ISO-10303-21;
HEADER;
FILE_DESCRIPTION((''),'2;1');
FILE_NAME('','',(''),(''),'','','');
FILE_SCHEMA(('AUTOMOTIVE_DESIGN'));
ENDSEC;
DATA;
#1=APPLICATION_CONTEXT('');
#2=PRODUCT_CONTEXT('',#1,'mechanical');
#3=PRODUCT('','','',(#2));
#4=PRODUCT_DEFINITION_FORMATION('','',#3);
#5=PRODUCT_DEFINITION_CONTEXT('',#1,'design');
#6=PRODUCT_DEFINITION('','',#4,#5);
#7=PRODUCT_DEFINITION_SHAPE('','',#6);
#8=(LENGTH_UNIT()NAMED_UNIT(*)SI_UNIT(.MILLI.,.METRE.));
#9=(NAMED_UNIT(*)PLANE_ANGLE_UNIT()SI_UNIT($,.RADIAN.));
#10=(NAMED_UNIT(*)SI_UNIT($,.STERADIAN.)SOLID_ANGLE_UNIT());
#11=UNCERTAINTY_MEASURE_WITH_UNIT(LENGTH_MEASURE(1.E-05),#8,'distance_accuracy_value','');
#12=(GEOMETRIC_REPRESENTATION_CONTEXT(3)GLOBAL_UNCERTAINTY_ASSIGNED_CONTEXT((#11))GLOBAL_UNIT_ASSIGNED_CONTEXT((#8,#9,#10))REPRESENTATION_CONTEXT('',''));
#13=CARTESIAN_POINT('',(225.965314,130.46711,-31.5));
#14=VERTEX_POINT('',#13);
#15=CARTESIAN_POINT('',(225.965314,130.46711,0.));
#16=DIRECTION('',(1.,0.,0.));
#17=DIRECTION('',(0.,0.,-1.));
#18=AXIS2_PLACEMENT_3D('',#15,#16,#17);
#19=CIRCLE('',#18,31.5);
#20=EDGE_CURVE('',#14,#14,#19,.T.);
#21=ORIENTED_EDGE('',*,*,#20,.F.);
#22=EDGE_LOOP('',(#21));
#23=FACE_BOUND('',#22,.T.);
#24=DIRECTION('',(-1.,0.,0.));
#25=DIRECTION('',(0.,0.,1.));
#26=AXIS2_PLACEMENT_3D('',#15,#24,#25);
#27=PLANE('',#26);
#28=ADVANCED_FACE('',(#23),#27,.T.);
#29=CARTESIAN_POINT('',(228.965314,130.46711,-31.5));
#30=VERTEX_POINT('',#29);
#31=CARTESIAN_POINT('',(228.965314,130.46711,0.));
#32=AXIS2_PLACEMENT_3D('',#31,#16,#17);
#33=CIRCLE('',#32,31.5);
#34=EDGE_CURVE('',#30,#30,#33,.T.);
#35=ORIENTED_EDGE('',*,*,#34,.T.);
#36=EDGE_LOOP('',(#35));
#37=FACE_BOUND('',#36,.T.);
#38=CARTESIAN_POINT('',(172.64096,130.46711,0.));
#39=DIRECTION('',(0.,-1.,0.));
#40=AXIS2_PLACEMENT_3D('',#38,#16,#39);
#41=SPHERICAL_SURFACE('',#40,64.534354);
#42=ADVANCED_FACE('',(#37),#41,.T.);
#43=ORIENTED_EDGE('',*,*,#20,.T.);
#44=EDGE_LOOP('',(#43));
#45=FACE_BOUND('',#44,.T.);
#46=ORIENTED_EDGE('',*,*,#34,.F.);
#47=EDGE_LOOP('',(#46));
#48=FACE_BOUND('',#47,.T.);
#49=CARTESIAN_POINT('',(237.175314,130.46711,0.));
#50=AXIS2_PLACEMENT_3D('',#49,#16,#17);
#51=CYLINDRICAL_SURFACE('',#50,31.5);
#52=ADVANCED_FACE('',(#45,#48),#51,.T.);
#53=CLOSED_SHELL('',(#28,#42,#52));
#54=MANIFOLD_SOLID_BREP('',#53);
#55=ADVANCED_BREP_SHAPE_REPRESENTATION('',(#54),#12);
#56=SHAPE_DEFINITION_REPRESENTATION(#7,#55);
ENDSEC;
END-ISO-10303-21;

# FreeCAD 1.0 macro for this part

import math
import FreeCAD as App
import Part
import Sketcher
Q = App.Units.Quantity

doc = App.newDocument("Part")
body = doc.addObject("PartDesign::Body", "Body")

sketch1 = body.newObject("Sketcher::SketchObject", "Sketch")
sketch1.AttachmentSupport = (doc.getObject("XY_Plane"), [""])
sketch1.MapMode = "FlatFace"
sketch1.addGeometry([
    Part.LineSegment(App.Vector(226, 130.5, 0), App.Vector(237.2, 130.5, 0)),
    Part.ArcOfCircle(Part.Circle(App.Vector(172.6, 130.5, 0), App.Vector(0, 0, 1), 64.5), math.radians(0), math.radians(29)),
    Part.LineSegment(App.Vector(229, 162, 0), App.Vector(226, 162, 0)),
    Part.LineSegment(App.Vector(226, 162, 0), App.Vector(226, 130.5, 0)),
], False)
sketch1.addGeometry(Part.LineSegment(App.Vector(237.2, 130.5, 0), App.Vector(172.6, 130.5, 0)), True)
sketch1.addConstraint([
    Sketcher.Constraint("Coincident", 0, 2, 1, 1),
    Sketcher.Constraint("Coincident", 1, 2, 2, 1),
    Sketcher.Constraint("Coincident", 2, 2, 3, 1),
    Sketcher.Constraint("Coincident", 3, 2, 0, 1),
    Sketcher.Constraint("Horizontal", 0),
    Sketcher.Constraint("Horizontal", 2),
    Sketcher.Constraint("Vertical", 3),
    Sketcher.Constraint("Horizontal", 4),
    Sketcher.Constraint("Coincident", 4, 1, 0, 2),
    Sketcher.Constraint("Coincident", 4, 2, 1, 3),
    Sketcher.Constraint("DistanceX", 2, 2, 2, 1, Q("3 mm")),
    Sketcher.Constraint("DistanceY", 3, 2, 3, 1, Q("31.5 mm")),
    Sketcher.Constraint("DistanceX", 0, 1, 0, 2, Q("11.21 mm")),
    Sketcher.Constraint("DistanceX", -1, 1, 1, 3, Q("172.64096 mm")),
    Sketcher.Constraint("DistanceY", -1, 1, 1, 3, Q("130.46711 mm")),
])
revolution = body.newObject("PartDesign::Revolution", "Revolution")
revolution.Profile = sketch1
revolution.ReferenceAxis = (sketch1, ["Axis0"])
revolution.Angle = 360

doc.recompute()
